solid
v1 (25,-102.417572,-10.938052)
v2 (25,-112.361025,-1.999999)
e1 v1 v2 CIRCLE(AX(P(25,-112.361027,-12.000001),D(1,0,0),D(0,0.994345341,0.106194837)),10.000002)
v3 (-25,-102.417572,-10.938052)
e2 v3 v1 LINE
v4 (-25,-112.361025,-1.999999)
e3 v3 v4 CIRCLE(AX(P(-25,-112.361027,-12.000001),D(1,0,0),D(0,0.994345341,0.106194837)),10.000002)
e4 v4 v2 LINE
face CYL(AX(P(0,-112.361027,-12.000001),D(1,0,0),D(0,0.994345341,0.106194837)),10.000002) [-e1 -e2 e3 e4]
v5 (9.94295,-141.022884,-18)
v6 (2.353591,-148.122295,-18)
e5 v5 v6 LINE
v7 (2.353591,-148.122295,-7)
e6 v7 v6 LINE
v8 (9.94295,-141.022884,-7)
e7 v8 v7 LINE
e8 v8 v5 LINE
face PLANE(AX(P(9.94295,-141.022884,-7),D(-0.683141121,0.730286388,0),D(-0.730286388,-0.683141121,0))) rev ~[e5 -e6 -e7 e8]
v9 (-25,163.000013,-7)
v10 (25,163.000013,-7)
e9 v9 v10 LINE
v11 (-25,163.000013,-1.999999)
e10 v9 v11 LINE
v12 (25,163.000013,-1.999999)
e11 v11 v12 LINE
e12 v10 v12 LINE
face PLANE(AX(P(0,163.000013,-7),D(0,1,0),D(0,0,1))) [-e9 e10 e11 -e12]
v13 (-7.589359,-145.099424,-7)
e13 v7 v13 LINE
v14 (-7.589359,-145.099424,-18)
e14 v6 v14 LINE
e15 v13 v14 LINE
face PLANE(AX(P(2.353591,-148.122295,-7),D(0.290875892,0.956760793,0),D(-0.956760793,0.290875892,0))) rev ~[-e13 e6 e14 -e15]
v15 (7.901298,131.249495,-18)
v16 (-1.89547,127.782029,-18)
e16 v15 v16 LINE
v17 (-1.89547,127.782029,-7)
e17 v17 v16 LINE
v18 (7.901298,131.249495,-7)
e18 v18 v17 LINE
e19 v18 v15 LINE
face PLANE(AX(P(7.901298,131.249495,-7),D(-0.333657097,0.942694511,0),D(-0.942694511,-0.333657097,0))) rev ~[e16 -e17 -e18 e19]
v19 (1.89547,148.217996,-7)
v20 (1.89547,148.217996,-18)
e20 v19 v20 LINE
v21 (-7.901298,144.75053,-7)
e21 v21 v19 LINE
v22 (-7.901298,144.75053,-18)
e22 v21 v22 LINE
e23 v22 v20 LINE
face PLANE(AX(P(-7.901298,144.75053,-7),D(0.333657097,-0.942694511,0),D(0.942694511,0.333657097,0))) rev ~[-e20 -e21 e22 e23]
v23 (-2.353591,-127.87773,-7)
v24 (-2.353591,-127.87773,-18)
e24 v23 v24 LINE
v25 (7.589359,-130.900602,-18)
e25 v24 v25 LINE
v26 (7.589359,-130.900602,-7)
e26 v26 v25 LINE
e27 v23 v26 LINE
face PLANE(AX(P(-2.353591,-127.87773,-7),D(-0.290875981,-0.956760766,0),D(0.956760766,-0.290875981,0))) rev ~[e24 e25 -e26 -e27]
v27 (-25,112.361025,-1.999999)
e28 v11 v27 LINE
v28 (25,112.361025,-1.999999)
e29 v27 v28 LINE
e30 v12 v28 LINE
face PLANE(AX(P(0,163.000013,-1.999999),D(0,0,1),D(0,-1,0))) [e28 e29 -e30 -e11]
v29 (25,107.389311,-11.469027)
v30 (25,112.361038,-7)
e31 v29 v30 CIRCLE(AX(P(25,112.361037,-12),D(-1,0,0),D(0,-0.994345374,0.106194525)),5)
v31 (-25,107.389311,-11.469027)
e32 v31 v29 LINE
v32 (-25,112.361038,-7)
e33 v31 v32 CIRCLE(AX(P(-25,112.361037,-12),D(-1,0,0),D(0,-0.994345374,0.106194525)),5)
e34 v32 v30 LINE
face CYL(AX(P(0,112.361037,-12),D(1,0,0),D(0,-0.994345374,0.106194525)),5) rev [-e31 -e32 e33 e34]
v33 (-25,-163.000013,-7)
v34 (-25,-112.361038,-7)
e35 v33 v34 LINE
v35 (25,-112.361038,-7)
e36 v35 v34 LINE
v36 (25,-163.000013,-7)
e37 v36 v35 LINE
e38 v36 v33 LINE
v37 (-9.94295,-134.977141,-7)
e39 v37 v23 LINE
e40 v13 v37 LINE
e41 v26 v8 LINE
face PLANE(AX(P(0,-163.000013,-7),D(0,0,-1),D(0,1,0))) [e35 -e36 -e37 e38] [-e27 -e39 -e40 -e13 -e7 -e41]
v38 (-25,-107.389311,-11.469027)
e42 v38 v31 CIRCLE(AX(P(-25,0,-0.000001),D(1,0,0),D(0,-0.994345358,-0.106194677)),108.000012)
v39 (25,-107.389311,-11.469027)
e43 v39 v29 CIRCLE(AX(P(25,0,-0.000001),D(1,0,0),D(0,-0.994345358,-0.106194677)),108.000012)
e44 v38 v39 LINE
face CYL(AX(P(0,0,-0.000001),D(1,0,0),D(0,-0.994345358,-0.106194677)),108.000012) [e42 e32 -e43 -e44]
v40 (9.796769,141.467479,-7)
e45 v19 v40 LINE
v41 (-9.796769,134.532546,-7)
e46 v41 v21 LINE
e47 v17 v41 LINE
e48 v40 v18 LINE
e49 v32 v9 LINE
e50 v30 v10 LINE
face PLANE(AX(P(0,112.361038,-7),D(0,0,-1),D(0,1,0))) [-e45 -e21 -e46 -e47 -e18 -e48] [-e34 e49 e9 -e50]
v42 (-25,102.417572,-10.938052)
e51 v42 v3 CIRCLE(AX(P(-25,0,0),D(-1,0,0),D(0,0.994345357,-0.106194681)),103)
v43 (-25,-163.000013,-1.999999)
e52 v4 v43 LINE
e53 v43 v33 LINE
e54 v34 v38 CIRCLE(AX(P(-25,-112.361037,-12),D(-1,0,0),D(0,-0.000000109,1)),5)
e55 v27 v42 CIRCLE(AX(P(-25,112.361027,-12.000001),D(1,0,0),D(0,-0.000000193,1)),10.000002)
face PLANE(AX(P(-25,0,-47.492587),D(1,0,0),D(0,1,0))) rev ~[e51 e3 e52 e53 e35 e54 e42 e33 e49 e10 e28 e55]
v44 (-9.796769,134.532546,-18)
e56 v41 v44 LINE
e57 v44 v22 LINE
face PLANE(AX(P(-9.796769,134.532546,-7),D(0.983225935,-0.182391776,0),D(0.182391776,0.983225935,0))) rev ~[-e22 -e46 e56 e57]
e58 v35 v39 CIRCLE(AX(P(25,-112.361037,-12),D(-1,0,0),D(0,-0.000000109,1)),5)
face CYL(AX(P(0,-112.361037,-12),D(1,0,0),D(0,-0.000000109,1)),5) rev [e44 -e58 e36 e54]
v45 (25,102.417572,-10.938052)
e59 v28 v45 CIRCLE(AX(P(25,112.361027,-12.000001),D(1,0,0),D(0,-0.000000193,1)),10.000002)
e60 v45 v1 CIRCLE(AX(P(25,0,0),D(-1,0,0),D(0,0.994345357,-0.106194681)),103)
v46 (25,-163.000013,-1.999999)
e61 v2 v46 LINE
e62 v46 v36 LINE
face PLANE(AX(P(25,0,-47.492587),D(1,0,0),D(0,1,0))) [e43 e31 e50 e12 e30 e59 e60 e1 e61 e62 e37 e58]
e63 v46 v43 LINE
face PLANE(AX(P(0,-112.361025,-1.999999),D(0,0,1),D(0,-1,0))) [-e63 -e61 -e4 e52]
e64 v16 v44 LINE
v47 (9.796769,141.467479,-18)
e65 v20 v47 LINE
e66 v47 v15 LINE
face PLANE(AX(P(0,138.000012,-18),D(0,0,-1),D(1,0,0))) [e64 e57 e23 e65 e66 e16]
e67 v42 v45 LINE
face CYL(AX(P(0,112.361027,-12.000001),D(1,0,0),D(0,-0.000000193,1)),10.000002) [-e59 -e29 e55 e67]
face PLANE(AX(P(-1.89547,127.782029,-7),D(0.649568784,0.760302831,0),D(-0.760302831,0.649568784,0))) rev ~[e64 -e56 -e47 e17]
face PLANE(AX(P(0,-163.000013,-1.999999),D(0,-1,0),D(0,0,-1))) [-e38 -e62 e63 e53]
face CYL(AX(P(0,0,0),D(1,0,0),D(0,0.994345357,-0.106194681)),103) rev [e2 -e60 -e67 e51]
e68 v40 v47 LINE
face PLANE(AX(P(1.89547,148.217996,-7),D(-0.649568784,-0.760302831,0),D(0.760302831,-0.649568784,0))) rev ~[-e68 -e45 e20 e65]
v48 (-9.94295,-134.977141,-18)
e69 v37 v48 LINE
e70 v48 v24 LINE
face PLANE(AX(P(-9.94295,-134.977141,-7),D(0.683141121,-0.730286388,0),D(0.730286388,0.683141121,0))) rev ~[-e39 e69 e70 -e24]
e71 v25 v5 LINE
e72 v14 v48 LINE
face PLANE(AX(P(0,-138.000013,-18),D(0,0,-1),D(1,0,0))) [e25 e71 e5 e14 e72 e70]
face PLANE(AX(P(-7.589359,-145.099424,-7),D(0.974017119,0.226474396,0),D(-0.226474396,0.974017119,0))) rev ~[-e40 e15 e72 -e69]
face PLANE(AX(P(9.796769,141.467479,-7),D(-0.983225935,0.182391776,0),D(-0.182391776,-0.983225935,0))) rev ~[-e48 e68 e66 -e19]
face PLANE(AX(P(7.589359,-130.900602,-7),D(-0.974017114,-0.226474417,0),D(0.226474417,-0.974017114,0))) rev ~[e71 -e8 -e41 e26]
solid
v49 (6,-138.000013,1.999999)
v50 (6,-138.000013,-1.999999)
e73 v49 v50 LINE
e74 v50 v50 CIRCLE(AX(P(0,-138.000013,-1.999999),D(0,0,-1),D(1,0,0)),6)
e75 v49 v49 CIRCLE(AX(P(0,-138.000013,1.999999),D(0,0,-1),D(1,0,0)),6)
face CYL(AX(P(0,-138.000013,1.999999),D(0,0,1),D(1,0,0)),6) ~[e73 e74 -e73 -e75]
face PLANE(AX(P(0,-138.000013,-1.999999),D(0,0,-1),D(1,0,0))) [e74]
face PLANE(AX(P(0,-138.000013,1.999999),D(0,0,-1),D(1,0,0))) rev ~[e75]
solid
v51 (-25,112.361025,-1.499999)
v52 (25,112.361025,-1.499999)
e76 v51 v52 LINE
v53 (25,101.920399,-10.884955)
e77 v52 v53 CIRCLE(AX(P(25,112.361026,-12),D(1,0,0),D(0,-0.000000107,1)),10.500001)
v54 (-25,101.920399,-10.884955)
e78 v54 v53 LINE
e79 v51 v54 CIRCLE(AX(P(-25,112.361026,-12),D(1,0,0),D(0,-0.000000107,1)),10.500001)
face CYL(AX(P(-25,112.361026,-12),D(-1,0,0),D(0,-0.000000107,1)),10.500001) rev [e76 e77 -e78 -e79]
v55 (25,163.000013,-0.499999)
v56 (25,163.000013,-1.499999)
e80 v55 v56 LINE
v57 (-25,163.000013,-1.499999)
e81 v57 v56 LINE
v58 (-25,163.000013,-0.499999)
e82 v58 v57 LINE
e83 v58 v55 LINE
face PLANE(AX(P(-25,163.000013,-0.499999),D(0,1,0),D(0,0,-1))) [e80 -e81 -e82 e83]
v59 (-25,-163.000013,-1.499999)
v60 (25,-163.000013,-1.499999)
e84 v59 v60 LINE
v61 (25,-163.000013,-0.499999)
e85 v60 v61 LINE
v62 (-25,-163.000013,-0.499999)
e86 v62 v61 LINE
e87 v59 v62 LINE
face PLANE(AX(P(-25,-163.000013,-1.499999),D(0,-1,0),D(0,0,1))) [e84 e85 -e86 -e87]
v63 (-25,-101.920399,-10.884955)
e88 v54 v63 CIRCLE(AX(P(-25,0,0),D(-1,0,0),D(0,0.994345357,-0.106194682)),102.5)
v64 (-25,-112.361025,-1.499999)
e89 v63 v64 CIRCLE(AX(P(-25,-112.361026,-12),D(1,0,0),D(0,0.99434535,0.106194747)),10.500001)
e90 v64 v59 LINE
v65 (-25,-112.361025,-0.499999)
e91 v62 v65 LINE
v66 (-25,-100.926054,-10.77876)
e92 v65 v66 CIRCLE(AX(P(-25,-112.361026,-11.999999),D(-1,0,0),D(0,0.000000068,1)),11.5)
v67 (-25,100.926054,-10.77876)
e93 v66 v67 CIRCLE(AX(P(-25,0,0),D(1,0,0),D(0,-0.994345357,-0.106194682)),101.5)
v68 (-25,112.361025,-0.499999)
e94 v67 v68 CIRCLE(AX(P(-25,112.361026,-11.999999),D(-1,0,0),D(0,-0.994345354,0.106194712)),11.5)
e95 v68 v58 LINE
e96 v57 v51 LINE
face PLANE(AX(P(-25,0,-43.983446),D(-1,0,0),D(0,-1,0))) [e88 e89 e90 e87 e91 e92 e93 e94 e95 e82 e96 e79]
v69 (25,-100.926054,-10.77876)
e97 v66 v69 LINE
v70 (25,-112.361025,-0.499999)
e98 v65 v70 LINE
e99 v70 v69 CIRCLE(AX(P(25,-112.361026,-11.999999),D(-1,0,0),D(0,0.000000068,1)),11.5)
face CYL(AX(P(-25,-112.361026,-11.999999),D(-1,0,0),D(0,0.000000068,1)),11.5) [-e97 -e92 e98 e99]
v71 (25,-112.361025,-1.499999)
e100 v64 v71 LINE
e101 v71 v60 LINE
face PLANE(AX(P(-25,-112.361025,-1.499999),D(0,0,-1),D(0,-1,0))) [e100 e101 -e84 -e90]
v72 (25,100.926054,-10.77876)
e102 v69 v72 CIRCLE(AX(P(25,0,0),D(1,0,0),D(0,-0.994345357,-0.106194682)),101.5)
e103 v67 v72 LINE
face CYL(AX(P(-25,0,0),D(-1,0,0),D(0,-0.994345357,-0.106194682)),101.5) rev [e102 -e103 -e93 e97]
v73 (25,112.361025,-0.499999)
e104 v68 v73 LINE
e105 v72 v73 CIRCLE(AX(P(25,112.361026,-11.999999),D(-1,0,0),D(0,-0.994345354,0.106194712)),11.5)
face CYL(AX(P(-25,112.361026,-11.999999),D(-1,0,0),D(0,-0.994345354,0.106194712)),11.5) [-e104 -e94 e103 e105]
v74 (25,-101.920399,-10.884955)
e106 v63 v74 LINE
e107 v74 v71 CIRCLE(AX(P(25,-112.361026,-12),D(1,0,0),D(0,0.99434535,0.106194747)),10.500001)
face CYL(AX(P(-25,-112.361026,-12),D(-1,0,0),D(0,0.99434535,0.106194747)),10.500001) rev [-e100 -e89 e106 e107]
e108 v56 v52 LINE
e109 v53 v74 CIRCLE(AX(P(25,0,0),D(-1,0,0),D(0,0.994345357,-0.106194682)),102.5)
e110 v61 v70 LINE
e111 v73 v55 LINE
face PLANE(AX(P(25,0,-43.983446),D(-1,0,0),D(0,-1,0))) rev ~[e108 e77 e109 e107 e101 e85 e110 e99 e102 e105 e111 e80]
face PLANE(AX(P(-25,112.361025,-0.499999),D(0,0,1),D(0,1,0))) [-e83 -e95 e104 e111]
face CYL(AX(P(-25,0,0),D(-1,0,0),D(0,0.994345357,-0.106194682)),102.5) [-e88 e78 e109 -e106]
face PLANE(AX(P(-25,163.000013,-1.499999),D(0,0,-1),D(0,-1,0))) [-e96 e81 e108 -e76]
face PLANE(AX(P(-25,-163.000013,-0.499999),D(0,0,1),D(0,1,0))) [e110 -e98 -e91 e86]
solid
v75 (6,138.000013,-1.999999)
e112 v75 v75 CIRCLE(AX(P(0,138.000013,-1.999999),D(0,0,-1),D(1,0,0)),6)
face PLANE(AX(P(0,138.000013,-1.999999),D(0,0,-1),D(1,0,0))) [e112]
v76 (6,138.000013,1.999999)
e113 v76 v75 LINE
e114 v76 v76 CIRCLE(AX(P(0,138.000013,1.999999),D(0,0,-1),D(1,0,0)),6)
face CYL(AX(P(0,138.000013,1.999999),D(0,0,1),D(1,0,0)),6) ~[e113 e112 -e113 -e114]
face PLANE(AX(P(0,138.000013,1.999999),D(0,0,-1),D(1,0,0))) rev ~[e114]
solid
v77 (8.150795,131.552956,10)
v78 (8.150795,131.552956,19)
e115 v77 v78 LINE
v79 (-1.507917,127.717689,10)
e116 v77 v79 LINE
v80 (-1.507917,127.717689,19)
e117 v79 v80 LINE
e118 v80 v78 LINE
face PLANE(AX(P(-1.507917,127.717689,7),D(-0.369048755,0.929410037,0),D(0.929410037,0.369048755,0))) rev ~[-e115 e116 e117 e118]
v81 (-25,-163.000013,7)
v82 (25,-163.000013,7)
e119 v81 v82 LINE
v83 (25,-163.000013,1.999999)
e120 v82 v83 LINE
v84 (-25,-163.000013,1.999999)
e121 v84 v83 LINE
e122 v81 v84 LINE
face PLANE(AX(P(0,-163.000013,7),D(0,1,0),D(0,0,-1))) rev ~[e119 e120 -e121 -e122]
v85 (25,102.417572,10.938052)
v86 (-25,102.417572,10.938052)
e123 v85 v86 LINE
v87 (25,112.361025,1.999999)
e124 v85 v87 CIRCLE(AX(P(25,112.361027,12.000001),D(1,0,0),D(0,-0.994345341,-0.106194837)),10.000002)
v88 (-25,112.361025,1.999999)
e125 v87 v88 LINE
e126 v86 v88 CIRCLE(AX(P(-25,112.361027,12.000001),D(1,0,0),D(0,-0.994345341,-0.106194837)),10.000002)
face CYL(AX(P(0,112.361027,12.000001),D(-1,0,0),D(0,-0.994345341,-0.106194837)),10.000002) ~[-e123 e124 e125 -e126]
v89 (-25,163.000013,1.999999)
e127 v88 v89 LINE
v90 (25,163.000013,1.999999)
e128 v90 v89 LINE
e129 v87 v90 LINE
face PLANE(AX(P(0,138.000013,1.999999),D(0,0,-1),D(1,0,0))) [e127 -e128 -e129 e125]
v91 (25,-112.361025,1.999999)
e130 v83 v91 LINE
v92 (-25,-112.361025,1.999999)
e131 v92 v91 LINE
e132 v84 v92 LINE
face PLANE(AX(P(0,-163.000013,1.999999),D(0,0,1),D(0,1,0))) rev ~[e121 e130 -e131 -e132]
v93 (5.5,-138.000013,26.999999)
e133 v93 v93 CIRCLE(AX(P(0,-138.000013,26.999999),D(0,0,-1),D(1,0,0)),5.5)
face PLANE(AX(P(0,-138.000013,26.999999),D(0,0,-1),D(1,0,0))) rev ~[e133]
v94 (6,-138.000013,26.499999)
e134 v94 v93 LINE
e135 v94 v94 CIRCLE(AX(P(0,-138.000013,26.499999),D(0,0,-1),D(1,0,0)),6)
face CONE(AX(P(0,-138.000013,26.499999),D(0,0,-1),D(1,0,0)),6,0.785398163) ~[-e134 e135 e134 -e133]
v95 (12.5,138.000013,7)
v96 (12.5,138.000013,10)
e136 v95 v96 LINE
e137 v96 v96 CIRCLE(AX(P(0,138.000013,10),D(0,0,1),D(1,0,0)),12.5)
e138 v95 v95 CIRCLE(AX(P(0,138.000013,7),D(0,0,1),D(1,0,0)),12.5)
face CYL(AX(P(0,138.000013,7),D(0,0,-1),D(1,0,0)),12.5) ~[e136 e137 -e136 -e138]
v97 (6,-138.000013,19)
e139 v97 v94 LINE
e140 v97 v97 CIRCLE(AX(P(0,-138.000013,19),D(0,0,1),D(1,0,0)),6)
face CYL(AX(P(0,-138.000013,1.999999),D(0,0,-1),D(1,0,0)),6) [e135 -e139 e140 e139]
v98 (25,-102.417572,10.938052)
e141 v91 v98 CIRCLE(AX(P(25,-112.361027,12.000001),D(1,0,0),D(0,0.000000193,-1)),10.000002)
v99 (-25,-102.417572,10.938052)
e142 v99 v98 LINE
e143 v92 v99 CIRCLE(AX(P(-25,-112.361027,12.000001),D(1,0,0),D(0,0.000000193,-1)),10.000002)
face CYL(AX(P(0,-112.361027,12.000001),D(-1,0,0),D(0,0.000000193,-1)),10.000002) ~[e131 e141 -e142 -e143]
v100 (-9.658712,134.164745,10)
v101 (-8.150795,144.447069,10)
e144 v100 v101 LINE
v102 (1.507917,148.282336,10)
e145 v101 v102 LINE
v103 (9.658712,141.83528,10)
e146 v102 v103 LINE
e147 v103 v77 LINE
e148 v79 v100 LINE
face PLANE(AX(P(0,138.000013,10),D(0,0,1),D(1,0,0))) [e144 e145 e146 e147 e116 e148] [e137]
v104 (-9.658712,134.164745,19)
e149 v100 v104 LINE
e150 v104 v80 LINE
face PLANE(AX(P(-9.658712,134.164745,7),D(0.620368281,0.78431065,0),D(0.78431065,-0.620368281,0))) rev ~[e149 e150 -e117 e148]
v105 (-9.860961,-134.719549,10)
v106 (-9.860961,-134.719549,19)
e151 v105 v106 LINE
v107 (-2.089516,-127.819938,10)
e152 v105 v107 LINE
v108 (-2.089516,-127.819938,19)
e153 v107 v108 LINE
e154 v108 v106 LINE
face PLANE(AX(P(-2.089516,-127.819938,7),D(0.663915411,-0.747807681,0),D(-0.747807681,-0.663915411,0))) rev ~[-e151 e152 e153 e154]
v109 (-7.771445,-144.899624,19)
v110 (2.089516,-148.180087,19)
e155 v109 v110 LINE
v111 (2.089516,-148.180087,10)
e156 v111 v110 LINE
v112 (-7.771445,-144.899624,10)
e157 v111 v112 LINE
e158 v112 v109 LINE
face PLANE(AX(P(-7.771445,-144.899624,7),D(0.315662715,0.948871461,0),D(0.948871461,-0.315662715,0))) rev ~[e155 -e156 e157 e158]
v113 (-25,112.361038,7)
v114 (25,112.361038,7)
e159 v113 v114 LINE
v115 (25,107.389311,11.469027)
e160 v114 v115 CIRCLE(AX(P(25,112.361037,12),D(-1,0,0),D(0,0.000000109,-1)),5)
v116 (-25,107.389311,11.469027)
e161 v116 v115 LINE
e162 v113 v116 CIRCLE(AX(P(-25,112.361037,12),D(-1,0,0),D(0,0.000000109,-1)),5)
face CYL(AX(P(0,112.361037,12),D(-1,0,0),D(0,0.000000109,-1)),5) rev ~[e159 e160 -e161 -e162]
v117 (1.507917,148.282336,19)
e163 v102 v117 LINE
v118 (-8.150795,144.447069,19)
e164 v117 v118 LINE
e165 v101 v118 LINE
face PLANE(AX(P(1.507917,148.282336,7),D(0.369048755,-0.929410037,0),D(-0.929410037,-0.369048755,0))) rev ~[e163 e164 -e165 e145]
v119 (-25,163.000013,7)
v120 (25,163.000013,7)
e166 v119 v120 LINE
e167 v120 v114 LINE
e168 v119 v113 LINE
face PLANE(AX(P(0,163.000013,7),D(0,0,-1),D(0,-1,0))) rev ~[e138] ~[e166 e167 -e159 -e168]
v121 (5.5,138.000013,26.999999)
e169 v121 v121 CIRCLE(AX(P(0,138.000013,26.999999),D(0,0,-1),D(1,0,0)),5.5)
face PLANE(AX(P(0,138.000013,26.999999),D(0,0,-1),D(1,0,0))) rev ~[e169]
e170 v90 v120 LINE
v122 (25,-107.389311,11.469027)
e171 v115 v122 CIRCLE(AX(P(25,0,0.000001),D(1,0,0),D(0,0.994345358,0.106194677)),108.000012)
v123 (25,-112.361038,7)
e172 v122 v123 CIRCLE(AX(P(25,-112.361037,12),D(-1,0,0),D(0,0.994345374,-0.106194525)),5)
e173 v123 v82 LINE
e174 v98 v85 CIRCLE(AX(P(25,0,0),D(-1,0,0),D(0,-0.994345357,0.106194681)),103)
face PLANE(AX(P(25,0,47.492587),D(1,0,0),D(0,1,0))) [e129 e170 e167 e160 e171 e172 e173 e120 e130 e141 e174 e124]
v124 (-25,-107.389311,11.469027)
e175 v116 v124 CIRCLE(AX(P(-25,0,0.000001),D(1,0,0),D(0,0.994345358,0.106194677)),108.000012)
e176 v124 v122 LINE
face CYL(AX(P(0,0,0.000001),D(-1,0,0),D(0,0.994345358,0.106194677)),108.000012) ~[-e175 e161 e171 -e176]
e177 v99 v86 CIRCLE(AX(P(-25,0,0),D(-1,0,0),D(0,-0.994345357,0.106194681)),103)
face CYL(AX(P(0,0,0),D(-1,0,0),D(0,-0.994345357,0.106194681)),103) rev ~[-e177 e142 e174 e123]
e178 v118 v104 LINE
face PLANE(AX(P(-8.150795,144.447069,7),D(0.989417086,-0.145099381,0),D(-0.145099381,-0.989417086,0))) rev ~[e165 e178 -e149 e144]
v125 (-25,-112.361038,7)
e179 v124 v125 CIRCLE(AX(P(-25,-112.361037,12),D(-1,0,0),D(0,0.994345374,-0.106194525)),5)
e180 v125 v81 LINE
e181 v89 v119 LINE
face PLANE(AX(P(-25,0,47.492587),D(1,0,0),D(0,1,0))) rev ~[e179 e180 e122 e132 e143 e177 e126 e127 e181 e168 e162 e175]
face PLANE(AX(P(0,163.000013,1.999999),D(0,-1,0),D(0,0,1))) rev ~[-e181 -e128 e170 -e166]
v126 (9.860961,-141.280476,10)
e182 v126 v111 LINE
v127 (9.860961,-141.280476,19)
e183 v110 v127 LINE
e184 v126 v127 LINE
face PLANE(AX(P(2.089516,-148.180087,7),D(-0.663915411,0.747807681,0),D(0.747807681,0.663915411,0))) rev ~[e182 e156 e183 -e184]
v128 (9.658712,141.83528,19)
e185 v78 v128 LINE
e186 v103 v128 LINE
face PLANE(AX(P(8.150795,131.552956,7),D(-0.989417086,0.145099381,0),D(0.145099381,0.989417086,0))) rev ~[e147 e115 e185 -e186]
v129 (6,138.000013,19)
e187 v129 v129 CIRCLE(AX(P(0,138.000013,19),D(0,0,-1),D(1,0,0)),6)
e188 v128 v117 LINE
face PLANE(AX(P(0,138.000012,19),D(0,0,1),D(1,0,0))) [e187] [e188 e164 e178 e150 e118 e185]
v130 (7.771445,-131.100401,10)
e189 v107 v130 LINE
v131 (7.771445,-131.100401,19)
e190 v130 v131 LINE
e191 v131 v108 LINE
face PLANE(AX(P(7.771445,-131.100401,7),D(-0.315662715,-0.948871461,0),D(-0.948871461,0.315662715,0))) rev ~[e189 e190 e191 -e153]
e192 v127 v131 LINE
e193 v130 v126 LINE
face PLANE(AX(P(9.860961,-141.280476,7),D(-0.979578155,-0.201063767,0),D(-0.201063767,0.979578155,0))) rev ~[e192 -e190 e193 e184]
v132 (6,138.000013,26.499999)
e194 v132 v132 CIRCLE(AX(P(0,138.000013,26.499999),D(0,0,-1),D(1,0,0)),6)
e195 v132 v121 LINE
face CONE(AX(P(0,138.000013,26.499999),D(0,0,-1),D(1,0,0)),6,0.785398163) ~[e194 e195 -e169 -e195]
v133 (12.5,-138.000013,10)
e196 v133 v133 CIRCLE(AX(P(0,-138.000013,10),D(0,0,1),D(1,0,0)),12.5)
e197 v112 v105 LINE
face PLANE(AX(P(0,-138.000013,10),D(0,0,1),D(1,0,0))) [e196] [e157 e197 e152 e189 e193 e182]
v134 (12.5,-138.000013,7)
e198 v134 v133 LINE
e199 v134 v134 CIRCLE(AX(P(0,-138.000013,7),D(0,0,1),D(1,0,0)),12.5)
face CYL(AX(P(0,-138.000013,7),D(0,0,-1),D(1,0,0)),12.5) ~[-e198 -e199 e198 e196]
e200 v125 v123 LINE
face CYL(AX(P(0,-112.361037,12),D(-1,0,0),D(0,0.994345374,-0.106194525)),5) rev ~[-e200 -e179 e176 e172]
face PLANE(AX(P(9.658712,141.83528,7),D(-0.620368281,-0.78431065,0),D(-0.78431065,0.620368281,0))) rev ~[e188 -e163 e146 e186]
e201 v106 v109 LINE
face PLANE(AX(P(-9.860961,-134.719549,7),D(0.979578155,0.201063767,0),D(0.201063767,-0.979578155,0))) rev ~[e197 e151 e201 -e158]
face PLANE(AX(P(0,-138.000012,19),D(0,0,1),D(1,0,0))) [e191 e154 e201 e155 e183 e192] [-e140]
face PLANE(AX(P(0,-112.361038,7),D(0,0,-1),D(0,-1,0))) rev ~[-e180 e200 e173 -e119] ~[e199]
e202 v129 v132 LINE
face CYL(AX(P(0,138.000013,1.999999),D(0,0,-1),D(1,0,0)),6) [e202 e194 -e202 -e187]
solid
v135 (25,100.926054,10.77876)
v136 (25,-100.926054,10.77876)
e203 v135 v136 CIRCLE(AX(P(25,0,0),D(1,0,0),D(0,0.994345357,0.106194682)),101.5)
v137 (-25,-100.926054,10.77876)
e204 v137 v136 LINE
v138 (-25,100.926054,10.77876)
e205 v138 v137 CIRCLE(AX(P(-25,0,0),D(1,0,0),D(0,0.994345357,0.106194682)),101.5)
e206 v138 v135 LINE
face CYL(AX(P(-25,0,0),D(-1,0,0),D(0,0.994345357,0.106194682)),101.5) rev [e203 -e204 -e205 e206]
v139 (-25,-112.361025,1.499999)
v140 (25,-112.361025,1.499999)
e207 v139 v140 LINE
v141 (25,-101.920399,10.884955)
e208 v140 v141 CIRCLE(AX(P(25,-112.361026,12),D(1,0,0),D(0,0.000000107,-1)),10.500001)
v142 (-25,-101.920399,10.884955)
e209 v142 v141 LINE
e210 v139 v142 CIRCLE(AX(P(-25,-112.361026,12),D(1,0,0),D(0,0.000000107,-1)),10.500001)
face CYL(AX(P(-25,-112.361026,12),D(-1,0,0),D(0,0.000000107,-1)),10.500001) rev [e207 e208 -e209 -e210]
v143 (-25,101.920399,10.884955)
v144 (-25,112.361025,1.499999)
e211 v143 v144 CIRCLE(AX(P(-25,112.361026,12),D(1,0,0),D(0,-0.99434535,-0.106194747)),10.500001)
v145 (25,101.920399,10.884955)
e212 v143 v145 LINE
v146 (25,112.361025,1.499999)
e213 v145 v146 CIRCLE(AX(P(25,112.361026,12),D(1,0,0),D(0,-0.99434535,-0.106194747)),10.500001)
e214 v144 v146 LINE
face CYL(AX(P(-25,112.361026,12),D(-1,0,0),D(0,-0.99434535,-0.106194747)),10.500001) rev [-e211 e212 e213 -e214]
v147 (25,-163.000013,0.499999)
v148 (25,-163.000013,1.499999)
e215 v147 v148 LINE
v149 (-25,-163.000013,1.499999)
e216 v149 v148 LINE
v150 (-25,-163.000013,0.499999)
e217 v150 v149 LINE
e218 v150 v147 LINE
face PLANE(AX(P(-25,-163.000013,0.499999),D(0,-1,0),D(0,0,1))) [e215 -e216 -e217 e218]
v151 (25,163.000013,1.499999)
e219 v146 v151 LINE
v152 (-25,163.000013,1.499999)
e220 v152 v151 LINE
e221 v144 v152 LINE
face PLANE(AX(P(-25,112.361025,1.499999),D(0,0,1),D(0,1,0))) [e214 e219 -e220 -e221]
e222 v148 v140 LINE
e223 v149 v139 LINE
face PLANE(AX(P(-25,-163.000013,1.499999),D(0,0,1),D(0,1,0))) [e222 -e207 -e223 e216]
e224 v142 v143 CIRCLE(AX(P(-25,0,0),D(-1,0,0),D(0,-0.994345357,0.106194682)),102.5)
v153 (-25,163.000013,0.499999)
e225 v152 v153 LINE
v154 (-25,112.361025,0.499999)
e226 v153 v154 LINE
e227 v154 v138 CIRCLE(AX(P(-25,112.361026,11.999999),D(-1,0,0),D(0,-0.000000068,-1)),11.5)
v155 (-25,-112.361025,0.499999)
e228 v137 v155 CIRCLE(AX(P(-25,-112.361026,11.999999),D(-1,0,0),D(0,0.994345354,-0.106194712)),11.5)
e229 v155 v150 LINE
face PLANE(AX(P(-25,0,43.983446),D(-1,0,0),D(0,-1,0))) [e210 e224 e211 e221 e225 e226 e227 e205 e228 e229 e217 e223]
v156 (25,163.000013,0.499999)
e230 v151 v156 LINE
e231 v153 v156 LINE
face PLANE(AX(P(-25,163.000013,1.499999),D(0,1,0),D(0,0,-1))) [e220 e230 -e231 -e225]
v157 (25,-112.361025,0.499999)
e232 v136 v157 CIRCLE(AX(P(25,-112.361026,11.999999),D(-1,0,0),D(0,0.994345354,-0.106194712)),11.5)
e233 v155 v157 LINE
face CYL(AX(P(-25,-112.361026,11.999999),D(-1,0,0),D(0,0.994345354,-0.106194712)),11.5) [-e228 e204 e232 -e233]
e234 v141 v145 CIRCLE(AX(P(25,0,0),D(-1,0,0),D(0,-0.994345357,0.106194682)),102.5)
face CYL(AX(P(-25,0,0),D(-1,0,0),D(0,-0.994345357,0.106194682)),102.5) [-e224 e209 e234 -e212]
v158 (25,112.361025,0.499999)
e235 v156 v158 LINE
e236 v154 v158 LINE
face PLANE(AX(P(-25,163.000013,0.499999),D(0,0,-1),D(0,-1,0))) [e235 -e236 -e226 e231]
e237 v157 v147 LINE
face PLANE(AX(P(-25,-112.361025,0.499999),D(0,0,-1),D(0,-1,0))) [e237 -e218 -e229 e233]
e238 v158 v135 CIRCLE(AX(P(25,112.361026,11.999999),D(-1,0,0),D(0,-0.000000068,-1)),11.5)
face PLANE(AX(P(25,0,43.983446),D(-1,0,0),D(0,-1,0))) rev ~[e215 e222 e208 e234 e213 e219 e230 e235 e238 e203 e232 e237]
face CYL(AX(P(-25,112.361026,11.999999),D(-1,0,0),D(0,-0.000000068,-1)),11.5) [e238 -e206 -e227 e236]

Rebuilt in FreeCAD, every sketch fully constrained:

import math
import FreeCAD as App
import Part
import Sketcher
Q = App.Units.Quantity


def edges_at(feature, points):
    """Names of the edges that pass closest to the given points."""
    edges = feature.Shape.Edges
    near = lambda p: min(range(len(edges)), key=lambda i: edges[i].distToShape(Part.Vertex(*p))[0])
    return sorted({f"Edge{near(p) + 1}" for p in points})


def add_polygon(sketch, points):
    """Adds a closed chain of lines whose ends are joined by coincident constraints."""
    first, n = sketch.GeometryCount, len(points)
    for a, b in zip(points, points[1:] + points[:1]):
        sketch.addGeometry(Part.LineSegment(App.Vector(*a, 0), App.Vector(*b, 0)), False)
    for i in range(n):
        sketch.addConstraint(Sketcher.Constraint("Coincident", first + i, 2, first + (i + 1) % n, 1))

doc = App.newDocument("Part")
body = doc.addObject("PartDesign::Body", "Body")
body.AllowCompound = True

# Sketch on YZ plane
sketch1 = doc.addObject("Sketcher::SketchObject", "Sketch")
body.addObject(sketch1)
sketch1.AttachmentSupport = (doc.YZ_Plane, [""])
sketch1.MapMode = "FlatFace"
sketch1.addGeometry([
    Part.LineSegment(App.Vector(163.000013, 1.999999, 0), App.Vector(163.000013, 7, 0)),  # 0
    Part.LineSegment(App.Vector(163.000013, 7, 0), App.Vector(112.361038, 7, 0)),  # 1
    Part.ArcOfCircle(Part.Circle(App.Vector(112.361037, 12, 0), App.Vector(0, 0, 1), 5), math.radians(-173.904007), math.radians(-89.999994)),  # 2
    Part.ArcOfCircle(Part.Circle(App.Vector(0, 0.000001, 0), App.Vector(0, 0, 1), 108.000012), math.radians(6.096001), math.radians(173.903999)),  # 3
    Part.ArcOfCircle(Part.Circle(App.Vector(-112.361037, 12, 0), App.Vector(0, 0, 1), 5), math.radians(-90.000006), math.radians(-6.095993)),  # 4
    Part.LineSegment(App.Vector(-112.361038, 7, 0), App.Vector(-163.000013, 7, 0)),  # 5
    Part.LineSegment(App.Vector(-163.000013, 7, 0), App.Vector(-163.000013, 1.999999, 0)),  # 6
    Part.LineSegment(App.Vector(-163.000013, 1.999999, 0), App.Vector(-112.361025, 1.999999, 0)),  # 7
    Part.ArcOfCircle(Part.Circle(App.Vector(-112.361027, 12.000001, 0), App.Vector(0, 0, 1), 10.000002), math.radians(-89.999989), math.radians(-6.096011)),  # 8
    Part.ArcOfCircle(Part.Circle(App.Vector(0, 0, 0), App.Vector(0, 0, 1), 103), math.radians(6.096002), math.radians(173.903998)),  # 9
    Part.ArcOfCircle(Part.Circle(App.Vector(112.361027, 12.000001, 0), App.Vector(0, 0, 1), 10.000002), math.radians(-173.903989), math.radians(-90.000011)),  # 10
    Part.LineSegment(App.Vector(112.361025, 1.999999, 0), App.Vector(163.000013, 1.999999, 0)),  # 11
    Part.ArcOfCircle(Part.Circle(App.Vector(-112.361037, -12, 0), App.Vector(0, 0, 1), 5), math.radians(6.095993), math.radians(90.000006)),  # 12
    Part.ArcOfCircle(Part.Circle(App.Vector(0, -0.000001, 0), App.Vector(0, 0, 1), 108.000012), math.radians(-173.903999), math.radians(-6.096001)),  # 13
    Part.ArcOfCircle(Part.Circle(App.Vector(112.361037, -12, 0), App.Vector(0, 0, 1), 5), math.radians(89.999994), math.radians(173.904007)),  # 14
    Part.LineSegment(App.Vector(112.361038, -7, 0), App.Vector(163.000013, -7, 0)),  # 15
    Part.LineSegment(App.Vector(163.000013, -7, 0), App.Vector(163.000013, -1.999999, 0)),  # 16
    Part.LineSegment(App.Vector(163.000013, -1.999999, 0), App.Vector(112.361025, -1.999999, 0)),  # 17
    Part.ArcOfCircle(Part.Circle(App.Vector(112.361027, -12.000001, 0), App.Vector(0, 0, 1), 10.000002), math.radians(90.000011), math.radians(173.903989)),  # 18
    Part.ArcOfCircle(Part.Circle(App.Vector(0, 0, 0), App.Vector(0, 0, 1), 103), math.radians(-173.903998), math.radians(-6.096002)),  # 19
    Part.ArcOfCircle(Part.Circle(App.Vector(-112.361027, -12.000001, 0), App.Vector(0, 0, 1), 10.000002), math.radians(6.096011), math.radians(89.999989)),  # 20
    Part.LineSegment(App.Vector(-112.361025, -1.999999, 0), App.Vector(-163.000013, -1.999999, 0)),  # 21
    Part.LineSegment(App.Vector(-163.000013, -1.999999, 0), App.Vector(-163.000013, -7, 0)),  # 22
    Part.LineSegment(App.Vector(-163.000013, -7, 0), App.Vector(-112.361038, -7, 0)),  # 23
], False)
sketch1.addConstraint([
    Sketcher.Constraint("Coincident", 0, 2, 1, 1),
    Sketcher.Constraint("Tangent", 1, 2, 2, 2),
    Sketcher.Constraint("Tangent", 2, 1, 3, 1),
    Sketcher.Constraint("Tangent", 3, 2, 4, 2),
    Sketcher.Constraint("Tangent", 4, 1, 5, 1),
    Sketcher.Constraint("Coincident", 5, 2, 6, 1),
    Sketcher.Constraint("Coincident", 6, 2, 7, 1),
    Sketcher.Constraint("Tangent", 7, 2, 8, 1),
    Sketcher.Constraint("Tangent", 8, 2, 9, 2),
    Sketcher.Constraint("Tangent", 9, 1, 10, 1),
    Sketcher.Constraint("Tangent", 10, 2, 11, 1),
    Sketcher.Constraint("Coincident", 11, 2, 0, 1),
    Sketcher.Constraint("Tangent", 12, 1, 13, 1),
    Sketcher.Constraint("Tangent", 13, 2, 14, 2),
    Sketcher.Constraint("Tangent", 14, 1, 15, 1),
    Sketcher.Constraint("Coincident", 15, 2, 16, 1),
    Sketcher.Constraint("Coincident", 16, 2, 17, 1),
    Sketcher.Constraint("Tangent", 17, 2, 18, 1),
    Sketcher.Constraint("Tangent", 18, 2, 19, 2),
    Sketcher.Constraint("Tangent", 19, 1, 20, 1),
    Sketcher.Constraint("Tangent", 20, 2, 21, 1),
    Sketcher.Constraint("Coincident", 21, 2, 22, 1),
    Sketcher.Constraint("Coincident", 22, 2, 23, 1),
    Sketcher.Constraint("Tangent", 23, 2, 12, 2),
    Sketcher.Constraint("Vertical", 0),
    Sketcher.Constraint("Horizontal", 1),
    Sketcher.Constraint("Horizontal", 5),
    Sketcher.Constraint("Vertical", 6),
    Sketcher.Constraint("Horizontal", 7),
    Sketcher.Constraint("Horizontal", 11),
    Sketcher.Constraint("Horizontal", 15),
    Sketcher.Constraint("Vertical", 16),
    Sketcher.Constraint("Horizontal", 17),
    Sketcher.Constraint("Horizontal", 21),
    Sketcher.Constraint("Vertical", 22),
    Sketcher.Constraint("Horizontal", 23),
    Sketcher.Constraint("Coincident", 3, 3, -1, 1),
    Sketcher.Constraint("Coincident", 9, 3, -1, 1),
    Sketcher.Constraint("Coincident", 13, 3, -1, 1),
    Sketcher.Constraint("Coincident", 19, 3, -1, 1),
    Sketcher.Constraint("Equal", 2, 4),
    Sketcher.Constraint("Equal", 8, 10),
    Sketcher.Constraint("Equal", 4, 12),
    Sketcher.Constraint("Equal", 3, 13),
    Sketcher.Constraint("Equal", 12, 14),
    Sketcher.Constraint("Equal", 10, 18),
    Sketcher.Constraint("Equal", 9, 19),
    Sketcher.Constraint("Equal", 18, 20),
    Sketcher.Constraint("Symmetric", 5, 2, 15, 2, -1, 1),
    Sketcher.Constraint("Symmetric", 11, 2, 21, 2, -1, 1),
    Sketcher.Constraint("Symmetric", 0, 2, 5, 2, -2),
    Sketcher.Constraint("Horizontal", 4, 3, 8, 3),
    Sketcher.Constraint("Horizontal", 8, 3, 10, 3),
    Sketcher.Constraint("Horizontal", 12, 3, 14, 3),
    Sketcher.Constraint("Horizontal", 14, 3, 18, 3),
    Sketcher.Constraint("Radius", 2, Q("5 mm")),
    Sketcher.Constraint("Radius", 8, Q("10.000002 mm")),
    Sketcher.Constraint("Radius", 9, Q("103 mm")),
    Sketcher.Constraint("DistanceY", -1, 1, 2, 3, Q("12 mm")),
    Sketcher.Constraint("Radius", 3, Q("108.000012 mm")),
    Sketcher.Constraint("DistanceX", 1, 2, 1, 1, Q("50.638975 mm")),
])
pad1 = doc.addObject("PartDesign::Pad", "Pad")
body.addObject(pad1)
pad1.Profile = sketch1
pad1.Length = 50
pad1.Midplane = True

# Sketch on XY plane
sketch2 = doc.addObject("Sketcher::SketchObject", "Sketch001")
body.addObject(sketch2)
sketch2.AttachmentSupport = (doc.XY_Plane, [""])
sketch2.MapMode = "FlatFace"
sketch2.AttachmentOffset = App.Placement(App.Vector(0, 0, 7), App.Rotation())
add_polygon(sketch2, [(-9.860961, -134.719549), (-7.771445, -144.899624), (2.089516, -148.180087), (9.860961, -141.280476), (7.771445, -131.100401), (-2.089516, -127.819938)])  # lines 0-5
sketch2.addGeometry(Part.Circle(App.Vector(0, -138.000013, 0), App.Vector(0, 0, 1), 6), False)  # 6
add_polygon(sketch2, [(-9.658712, 134.164745), (-1.507917, 127.717689), (8.150795, 131.552956), (9.658712, 141.83528), (1.507917, 148.282336), (-8.150795, 144.447069)])  # lines 7-12
sketch2.addConstraint([
    Sketcher.Constraint("PointOnObject", 6, 3, -2),
    Sketcher.Constraint("Diameter", 6, Q("12 mm")),
    Sketcher.Constraint("DistanceY", 3, 2, -1, 1, Q("131.100401 mm")),
    Sketcher.Constraint("DistanceX", 4, 2, 7, 2, Q("0.581599 mm")),
    Sketcher.Constraint("DistanceY", 6, 3, 7, 2, Q("265.717702 mm")),
    Sketcher.Constraint("DistanceX", -1, 1, 2, 2, Q("9.860961 mm")),
    Sketcher.Constraint("DistanceX", 5, 2, -1, 1, Q("9.860961 mm")),
    Sketcher.Constraint("DistanceY", 5, 2, -1, 1, Q("134.719549 mm")),
    Sketcher.Constraint("DistanceY", -1, 1, 7, 2, Q("127.717689 mm")),
    Sketcher.Constraint("DistanceY", -1, 1, 9, 2, Q("141.83528 mm")),
    Sketcher.Constraint("DistanceY", -1, 1, 11, 2, Q("144.447069 mm")),
    Sketcher.Constraint("DistanceY", 0, 2, 6, 3, Q("6.899611 mm")),
    Sketcher.Constraint("DistanceX", 0, 2, 1, 2, Q("9.860961 mm")),
    Sketcher.Constraint("DistanceY", 1, 2, 2, 2, Q("6.899611 mm")),
    Sketcher.Constraint("DistanceX", 1, 2, 3, 2, Q("5.681929 mm")),
    Sketcher.Constraint("DistanceX", 4, 2, 3, 2, Q("9.860961 mm")),
    Sketcher.Constraint("DistanceY", 1, 2, 4, 2, Q("20.360149 mm")),
    Sketcher.Constraint("DistanceY", 5, 2, 4, 2, Q("6.899611 mm")),
    Sketcher.Constraint("DistanceX", 4, 2, 8, 2, Q("10.240311 mm")),
    Sketcher.Constraint("DistanceY", 6, 3, 8, 2, Q("269.552969 mm")),
    Sketcher.Constraint("DistanceX", 7, 2, 9, 2, Q("11.166629 mm")),
    Sketcher.Constraint("DistanceX", 10, 2, 8, 2, Q("6.642878 mm")),
    Sketcher.Constraint("DistanceY", 8, 2, 10, 2, Q("16.72938 mm")),
    Sketcher.Constraint("DistanceX", 11, 2, 7, 2, Q("6.642878 mm")),
    Sketcher.Constraint("DistanceX", 12, 2, 10, 2, Q("11.166629 mm")),
    Sketcher.Constraint("DistanceY", 12, 2, 10, 2, Q("14.117591 mm")),
    Sketcher.Constraint("Distance", 0, Q("10.392305 mm")),
])
pad2 = doc.addObject("PartDesign::Pad", "Pad001")
body.addObject(pad2)
pad2.Profile = sketch2
pad2.Length = 12

# Sketch on XY plane
sketch3 = doc.addObject("Sketcher::SketchObject", "Sketch002")
body.addObject(sketch3)
sketch3.AttachmentSupport = (doc.XY_Plane, [""])
sketch3.MapMode = "FlatFace"
sketch3.AttachmentOffset = App.Placement(App.Vector(0, 0, 7), App.Rotation())
sketch3.addGeometry(Part.Circle(App.Vector(0, -138.000013, 0), App.Vector(0, 0, 1), 12.5), False)  # 0
add_polygon(sketch3, [(9.860961, -141.280476), (2.089516, -148.180087), (-7.771445, -144.899624), (-9.860961, -134.719549), (-2.089516, -127.819938), (7.771445, -131.100401)])  # lines 1-6
sketch3.addGeometry(Part.Circle(App.Vector(0, 138.000013, 0), App.Vector(0, 0, 1), 12.5), False)  # 7
add_polygon(sketch3, [(9.658712, 141.83528), (8.150795, 131.552956), (-1.507917, 127.717689), (-9.658712, 134.164745), (-8.150795, 144.447069), (1.507917, 148.282336)])  # lines 8-13
sketch3.addConstraint([
    Sketcher.Constraint("Equal", 0, 7),
    Sketcher.Constraint("Symmetric", 0, 3, 7, 3, -1, 1),
    Sketcher.Constraint("PointOnObject", 0, 3, -2),
    Sketcher.Constraint("Parallel", 1, 4),
    Sketcher.Constraint("Parallel", 2, 5),
    Sketcher.Constraint("Parallel", 3, 6),
    Sketcher.Constraint("Parallel", 8, 11),
    Sketcher.Constraint("Parallel", 9, 12),
    Sketcher.Constraint("Parallel", 10, 13),
    Sketcher.Constraint("Equal", 1, 2),
    Sketcher.Constraint("Equal", 2, 3),
    Sketcher.Constraint("Equal", 3, 4),
    Sketcher.Constraint("Equal", 6, 8),
    Sketcher.Constraint("Equal", 8, 9),
    Sketcher.Constraint("Equal", 9, 10),
    Sketcher.Constraint("Equal", 10, 11),
    Sketcher.Constraint("Diameter", 0, Q("25 mm")),
    Sketcher.Constraint("DistanceY", 5, 2, -1, 1, Q("131.100401 mm")),
    Sketcher.Constraint("DistanceY", 1, 2, 7, 3, Q("286.1801 mm")),
    Sketcher.Constraint("DistanceX", 4, 2, 9, 2, Q("0.581599 mm")),
    Sketcher.Constraint("DistanceX", 3, 2, -1, 1, Q("9.860961 mm")),
    Sketcher.Constraint("DistanceY", 3, 2, -1, 1, Q("134.719549 mm")),
    Sketcher.Constraint("DistanceX", -1, 1, 6, 2, Q("9.860961 mm")),
    Sketcher.Constraint("DistanceY", -1, 1, 9, 2, Q("127.717689 mm")),
    Sketcher.Constraint("DistanceY", -1, 1, 11, 2, Q("144.447069 mm")),
    Sketcher.Constraint("DistanceY", -1, 1, 13, 2, Q("141.83528 mm")),
    Sketcher.Constraint("DistanceX", 2, 2, 1, 2, Q("9.860961 mm")),
    Sketcher.Constraint("DistanceY", 2, 2, 0, 3, Q("6.899611 mm")),
    Sketcher.Constraint("DistanceX", 4, 2, 8, 2, Q("10.240311 mm")),
])
pad3 = doc.addObject("PartDesign::Pad", "Pad002")
body.addObject(pad3)
pad3.Profile = sketch3
pad3.Length = 3

# Sketch on XY plane
sketch4 = doc.addObject("Sketcher::SketchObject", "Sketch003")
body.addObject(sketch4)
sketch4.AttachmentSupport = (doc.XY_Plane, [""])
sketch4.MapMode = "FlatFace"
sketch4.AttachmentOffset = App.Placement(App.Vector(0, 0, 1.999999), App.Rotation())
sketch4.addGeometry([
    Part.Circle(App.Vector(0, 138.000013, 0), App.Vector(0, 0, 1), 6),
    Part.Circle(App.Vector(0, -138.000013, 0), App.Vector(0, 0, 1), 6),
], False)
sketch4.addConstraint([
    Sketcher.Constraint("Equal", 0, 1),
    Sketcher.Constraint("Symmetric", 0, 3, 1, 3, -1, 1),
    Sketcher.Constraint("PointOnObject", 0, 3, -2),
    Sketcher.Constraint("Diameter", 0, Q("12 mm")),
    Sketcher.Constraint("DistanceY", -1, 1, 0, 3, Q("138.000013 mm")),
])
pad4 = doc.addObject("PartDesign::Pad", "Pad003")
body.addObject(pad4)
pad4.Profile = sketch4
pad4.Length = 25

# Sketch on XY plane
sketch5 = doc.addObject("Sketcher::SketchObject", "Sketch004")
body.addObject(sketch5)
sketch5.AttachmentSupport = (doc.XY_Plane, [""])
sketch5.MapMode = "FlatFace"
sketch5.AttachmentOffset = App.Placement(App.Vector(0, 0, -7), App.Rotation())
add_polygon(sketch5, [(9.796769, 141.467479), (7.901298, 131.249495), (-1.89547, 127.782029), (-9.796769, 134.532546), (-7.901298, 144.75053), (1.89547, 148.217996)])  # lines 0-5
sketch5.addGeometry(Part.Circle(App.Vector(0, 138.000013, 0), App.Vector(0, 0, 1), 6), False)  # 6
add_polygon(sketch5, [(-9.94295, -134.977141), (-2.353591, -127.87773), (7.589359, -130.900602), (9.94295, -141.022884), (2.353591, -148.122295), (-7.589359, -145.099424)])  # lines 7-12
sketch5.addGeometry(Part.Circle(App.Vector(0, -138.000013, 0), App.Vector(0, 0, 1), 6), False)  # 13
sketch5.addConstraint([
    Sketcher.Constraint("Equal", 6, 13),
    Sketcher.Constraint("Symmetric", 6, 3, 13, 3, -1, 1),
    Sketcher.Constraint("PointOnObject", 6, 3, -2),
    Sketcher.Constraint("Parallel", 0, 3),
    Sketcher.Constraint("Parallel", 1, 4),
    Sketcher.Constraint("Parallel", 2, 5),
    Sketcher.Constraint("Parallel", 7, 10),
    Sketcher.Constraint("Parallel", 8, 11),
    Sketcher.Constraint("Parallel", 9, 12),
    Sketcher.Constraint("Equal", 0, 1),
    Sketcher.Constraint("Equal", 1, 2),
    Sketcher.Constraint("Equal", 2, 3),
    Sketcher.Constraint("Equal", 5, 7),
    Sketcher.Constraint("Equal", 7, 8),
    Sketcher.Constraint("Equal", 8, 9),
    Sketcher.Constraint("Equal", 9, 10),
    Sketcher.Constraint("Diameter", 6, Q("12 mm")),
    Sketcher.Constraint("DistanceY", 8, 2, -1, 1, Q("130.900602 mm")),
    Sketcher.Constraint("DistanceX", 2, 2, 1, 2, Q("7.901299 mm")),
    Sketcher.Constraint("DistanceY", 1, 2, 3, 2, Q("16.968501 mm")),
    Sketcher.Constraint("DistanceX", 1, 2, -1, 1, Q("1.89547 mm")),
    Sketcher.Constraint("DistanceY", -1, 1, 1, 2, Q("127.782029 mm")),
    Sketcher.Constraint("DistanceX", -1, 1, 4, 2, Q("1.89547 mm")),
    Sketcher.Constraint("DistanceY", -1, 1, 5, 2, Q("141.467479 mm")),
    Sketcher.Constraint("DistanceX", 7, 2, -1, 1, Q("2.353591 mm")),
    Sketcher.Constraint("DistanceY", 7, 2, -1, 1, Q("127.87773 mm")),
    Sketcher.Constraint("DistanceX", -1, 1, 9, 2, Q("9.94295 mm")),
    Sketcher.Constraint("DistanceX", -1, 1, 10, 2, Q("2.353591 mm")),
    Sketcher.Constraint("DistanceY", 13, 3, 0, 2, Q("269.249508 mm")),
])
pad5 = doc.addObject("PartDesign::Pad", "Pad004")
body.addObject(pad5)
pad5.Profile = sketch5
pad5.Length = 11
pad5.Reversed = True

# Sketch on XY plane
sketch6 = doc.addObject("Sketcher::SketchObject", "Sketch005")
body.addObject(sketch6)
sketch6.AttachmentSupport = (doc.XY_Plane, [""])
sketch6.MapMode = "FlatFace"
sketch6.AttachmentOffset = App.Placement(App.Vector(0, 0, -7), App.Rotation())
sketch6.addGeometry([
    Part.Circle(App.Vector(0, -138.000013, 0), App.Vector(0, 0, 1), 6),
    Part.Circle(App.Vector(0, 138.000012, 0), App.Vector(0, 0, 1), 6),
], False)
sketch6.addConstraint([
    Sketcher.Constraint("Equal", 0, 1),
    Sketcher.Constraint("Symmetric", 0, 3, 1, 3, -1, 1),
    Sketcher.Constraint("PointOnObject", 0, 3, -2),
    Sketcher.Constraint("Diameter", 0, Q("12 mm")),
    Sketcher.Constraint("DistanceY", -1, 1, 1, 3, Q("138.000012 mm")),
])
pad6 = doc.addObject("PartDesign::Pad", "Pad005")
body.addObject(pad6)
pad6.Profile = sketch6
pad6.Length = 11
pad6.Reversed = True
doc.recompute()

chamfer = doc.addObject("PartDesign::Chamfer", "Chamfer")
body.addObject(chamfer)
chamfer.Base = (pad6, edges_at(pad6, [(-6, -138, 27), (-6, 138, 27)]))
chamfer.Size = 0.5
body2 = doc.addObject("PartDesign::Body", "Body001")
body2.AllowCompound = True

# Sketch on XY plane
sketch7 = doc.addObject("Sketcher::SketchObject", "Sketch006")
body2.addObject(sketch7)
sketch7.AttachmentSupport = (doc.getObject("XY_Plane001"), [""])
sketch7.MapMode = "FlatFace"
sketch7.AttachmentOffset = App.Placement(App.Vector(0, 0, 1.999999), App.Rotation())
sketch7.addGeometry([
    Part.Circle(App.Vector(0, 138.000013, 0), App.Vector(0, 0, 1), 6),
    Part.Circle(App.Vector(0, -138.000013, 0), App.Vector(0, 0, 1), 6),
], False)
sketch7.addConstraint([
    Sketcher.Constraint("Equal", 0, 1),
    Sketcher.Constraint("Symmetric", 0, 3, 1, 3, -1, 1),
    Sketcher.Constraint("PointOnObject", 0, 3, -2),
    Sketcher.Constraint("Diameter", 0, Q("12 mm")),
    Sketcher.Constraint("DistanceY", -1, 1, 0, 3, Q("138.000013 mm")),
])
pad7 = doc.addObject("PartDesign::Pad", "Pad006")
body2.addObject(pad7)
pad7.Profile = sketch7
pad7.Length = 3.999998
pad7.Reversed = True
body3 = doc.addObject("PartDesign::Body", "Body002")
body3.AllowCompound = True

# Sketch on YZ plane
sketch8 = doc.addObject("Sketcher::SketchObject", "Sketch007")
body3.addObject(sketch8)
sketch8.AttachmentSupport = (doc.getObject("YZ_Plane002"), [""])
sketch8.MapMode = "FlatFace"
sketch8.AttachmentOffset = App.Placement(App.Vector(0, 0, -25), App.Rotation())
sketch8.addGeometry([
    Part.LineSegment(App.Vector(-163.000013, 1.499999, 0), App.Vector(-112.361025, 1.499999, 0)),  # 0
    Part.ArcOfCircle(Part.Circle(App.Vector(-112.361026, 12, 0), App.Vector(0, 0, 1), 10.500001), math.radians(-89.999994), math.radians(-6.096005)),  # 1
    Part.ArcOfCircle(Part.Circle(App.Vector(0, 0, 0), App.Vector(0, 0, 1), 102.5), math.radians(6.096002), math.radians(173.903998)),  # 2
    Part.ArcOfCircle(Part.Circle(App.Vector(112.361026, 12, 0), App.Vector(0, 0, 1), 10.500001), math.radians(-173.903995), math.radians(-90.000006)),  # 3
    Part.LineSegment(App.Vector(112.361025, 1.499999, 0), App.Vector(163.000013, 1.499999, 0)),  # 4
    Part.LineSegment(App.Vector(163.000013, 1.499999, 0), App.Vector(163.000013, 0.499999, 0)),  # 5
    Part.LineSegment(App.Vector(163.000013, 0.499999, 0), App.Vector(112.361025, 0.499999, 0)),  # 6
    Part.ArcOfCircle(Part.Circle(App.Vector(112.361026, 11.999999, 0), App.Vector(0, 0, 1), 11.5), math.radians(-173.903997), math.radians(-90.000004)),  # 7
    Part.ArcOfCircle(Part.Circle(App.Vector(0, 0, 0), App.Vector(0, 0, 1), 101.5), math.radians(6.096002), math.radians(173.903998)),  # 8
    Part.ArcOfCircle(Part.Circle(App.Vector(-112.361026, 11.999999, 0), App.Vector(0, 0, 1), 11.5), math.radians(-89.999996), math.radians(-6.096003)),  # 9
    Part.LineSegment(App.Vector(-112.361025, 0.499999, 0), App.Vector(-163.000013, 0.499999, 0)),  # 10
    Part.LineSegment(App.Vector(-163.000013, 0.499999, 0), App.Vector(-163.000013, 1.499999, 0)),  # 11
    Part.ArcOfCircle(Part.Circle(App.Vector(-112.361026, -12, 0), App.Vector(0, 0, 1), 10.500001), math.radians(6.096005), math.radians(89.999994)),  # 12
    Part.LineSegment(App.Vector(-112.361025, -1.499999, 0), App.Vector(-163.000013, -1.499999, 0)),  # 13
    Part.LineSegment(App.Vector(-163.000013, -1.499999, 0), App.Vector(-163.000013, -0.499999, 0)),  # 14
    Part.LineSegment(App.Vector(-163.000013, -0.499999, 0), App.Vector(-112.361025, -0.499999, 0)),  # 15
    Part.ArcOfCircle(Part.Circle(App.Vector(-112.361026, -11.999999, 0), App.Vector(0, 0, 1), 11.5), math.radians(6.096003), math.radians(89.999996)),  # 16
    Part.ArcOfCircle(Part.Circle(App.Vector(0, 0, 0), App.Vector(0, 0, 1), 101.5), math.radians(-173.903998), math.radians(-6.096002)),  # 17
    Part.ArcOfCircle(Part.Circle(App.Vector(112.361026, -11.999999, 0), App.Vector(0, 0, 1), 11.5), math.radians(90.000004), math.radians(173.903997)),  # 18
    Part.LineSegment(App.Vector(112.361025, -0.499999, 0), App.Vector(163.000013, -0.499999, 0)),  # 19
    Part.LineSegment(App.Vector(163.000013, -0.499999, 0), App.Vector(163.000013, -1.499999, 0)),  # 20
    Part.LineSegment(App.Vector(163.000013, -1.499999, 0), App.Vector(112.361025, -1.499999, 0)),  # 21
    Part.ArcOfCircle(Part.Circle(App.Vector(112.361026, -12, 0), App.Vector(0, 0, 1), 10.500001), math.radians(90.000006), math.radians(173.903995)),  # 22
    Part.ArcOfCircle(Part.Circle(App.Vector(0, 0, 0), App.Vector(0, 0, 1), 102.5), math.radians(-173.903998), math.radians(-6.096002)),  # 23
], False)
sketch8.addConstraint([
    Sketcher.Constraint("Tangent", 0, 2, 1, 1),
    Sketcher.Constraint("Tangent", 1, 2, 2, 2),
    Sketcher.Constraint("Tangent", 2, 1, 3, 1),
    Sketcher.Constraint("Tangent", 3, 2, 4, 1),
    Sketcher.Constraint("Coincident", 4, 2, 5, 1),
    Sketcher.Constraint("Coincident", 5, 2, 6, 1),
    Sketcher.Constraint("Tangent", 6, 2, 7, 2),
    Sketcher.Constraint("Tangent", 7, 1, 8, 1),
    Sketcher.Constraint("Tangent", 8, 2, 9, 2),
    Sketcher.Constraint("Tangent", 9, 1, 10, 1),
    Sketcher.Constraint("Coincident", 10, 2, 11, 1),
    Sketcher.Constraint("Coincident", 11, 2, 0, 1),
    Sketcher.Constraint("Tangent", 12, 2, 13, 1),
    Sketcher.Constraint("Coincident", 13, 2, 14, 1),
    Sketcher.Constraint("Coincident", 14, 2, 15, 1),
    Sketcher.Constraint("Tangent", 15, 2, 16, 2),
    Sketcher.Constraint("Tangent", 16, 1, 17, 1),
    Sketcher.Constraint("Tangent", 17, 2, 18, 2),
    Sketcher.Constraint("Tangent", 18, 1, 19, 1),
    Sketcher.Constraint("Coincident", 19, 2, 20, 1),
    Sketcher.Constraint("Coincident", 20, 2, 21, 1),
    Sketcher.Constraint("Tangent", 21, 2, 22, 1),
    Sketcher.Constraint("Tangent", 22, 2, 23, 2),
    Sketcher.Constraint("Tangent", 23, 1, 12, 1),
    Sketcher.Constraint("Horizontal", 0),
    Sketcher.Constraint("Horizontal", 4),
    Sketcher.Constraint("Vertical", 5),
    Sketcher.Constraint("Horizontal", 6),
    Sketcher.Constraint("Horizontal", 10),
    Sketcher.Constraint("Vertical", 11),
    Sketcher.Constraint("Horizontal", 13),
    Sketcher.Constraint("Vertical", 14),
    Sketcher.Constraint("Horizontal", 15),
    Sketcher.Constraint("Horizontal", 19),
    Sketcher.Constraint("Vertical", 20),
    Sketcher.Constraint("Horizontal", 21),
    Sketcher.Constraint("Coincident", 2, 3, -1, 1),
    Sketcher.Constraint("Coincident", 8, 3, -1, 1),
    Sketcher.Constraint("Coincident", 17, 3, -1, 1),
    Sketcher.Constraint("Coincident", 23, 3, -1, 1),
    Sketcher.Constraint("Coincident", 7, 3, 3, 3),
    Sketcher.Constraint("Coincident", 9, 3, 1, 3),
    Sketcher.Constraint("Coincident", 16, 3, 12, 3),
    Sketcher.Constraint("Coincident", 22, 3, 18, 3),
    Sketcher.Constraint("Equal", 1, 3),
    Sketcher.Constraint("Equal", 3, 12),
    Sketcher.Constraint("Equal", 9, 16),
    Sketcher.Constraint("Equal", 8, 17),
    Sketcher.Constraint("Equal", 16, 18),
    Sketcher.Constraint("Symmetric", 4, 2, 13, 2, -1, 1),
    Sketcher.Constraint("Symmetric", 10, 2, 19, 2, -1, 1),
    Sketcher.Constraint("Symmetric", 5, 2, 10, 2, -2),
    Sketcher.Constraint("Radius", 1, Q("10.500001 mm")),
    Sketcher.Constraint("Radius", 2, Q("102.5 mm")),
    Sketcher.Constraint("Radius", 7, Q("11.5 mm")),
    Sketcher.Constraint("DistanceY", -1, 1, 1, 3, Q("12 mm")),
    Sketcher.Constraint("DistanceX", 0, 1, 0, 2, Q("50.638988 mm")),
])
pad8 = doc.addObject("PartDesign::Pad", "Pad007")
body3.addObject(pad8)
pad8.Profile = sketch8
pad8.Length = 50

doc.recompute()
